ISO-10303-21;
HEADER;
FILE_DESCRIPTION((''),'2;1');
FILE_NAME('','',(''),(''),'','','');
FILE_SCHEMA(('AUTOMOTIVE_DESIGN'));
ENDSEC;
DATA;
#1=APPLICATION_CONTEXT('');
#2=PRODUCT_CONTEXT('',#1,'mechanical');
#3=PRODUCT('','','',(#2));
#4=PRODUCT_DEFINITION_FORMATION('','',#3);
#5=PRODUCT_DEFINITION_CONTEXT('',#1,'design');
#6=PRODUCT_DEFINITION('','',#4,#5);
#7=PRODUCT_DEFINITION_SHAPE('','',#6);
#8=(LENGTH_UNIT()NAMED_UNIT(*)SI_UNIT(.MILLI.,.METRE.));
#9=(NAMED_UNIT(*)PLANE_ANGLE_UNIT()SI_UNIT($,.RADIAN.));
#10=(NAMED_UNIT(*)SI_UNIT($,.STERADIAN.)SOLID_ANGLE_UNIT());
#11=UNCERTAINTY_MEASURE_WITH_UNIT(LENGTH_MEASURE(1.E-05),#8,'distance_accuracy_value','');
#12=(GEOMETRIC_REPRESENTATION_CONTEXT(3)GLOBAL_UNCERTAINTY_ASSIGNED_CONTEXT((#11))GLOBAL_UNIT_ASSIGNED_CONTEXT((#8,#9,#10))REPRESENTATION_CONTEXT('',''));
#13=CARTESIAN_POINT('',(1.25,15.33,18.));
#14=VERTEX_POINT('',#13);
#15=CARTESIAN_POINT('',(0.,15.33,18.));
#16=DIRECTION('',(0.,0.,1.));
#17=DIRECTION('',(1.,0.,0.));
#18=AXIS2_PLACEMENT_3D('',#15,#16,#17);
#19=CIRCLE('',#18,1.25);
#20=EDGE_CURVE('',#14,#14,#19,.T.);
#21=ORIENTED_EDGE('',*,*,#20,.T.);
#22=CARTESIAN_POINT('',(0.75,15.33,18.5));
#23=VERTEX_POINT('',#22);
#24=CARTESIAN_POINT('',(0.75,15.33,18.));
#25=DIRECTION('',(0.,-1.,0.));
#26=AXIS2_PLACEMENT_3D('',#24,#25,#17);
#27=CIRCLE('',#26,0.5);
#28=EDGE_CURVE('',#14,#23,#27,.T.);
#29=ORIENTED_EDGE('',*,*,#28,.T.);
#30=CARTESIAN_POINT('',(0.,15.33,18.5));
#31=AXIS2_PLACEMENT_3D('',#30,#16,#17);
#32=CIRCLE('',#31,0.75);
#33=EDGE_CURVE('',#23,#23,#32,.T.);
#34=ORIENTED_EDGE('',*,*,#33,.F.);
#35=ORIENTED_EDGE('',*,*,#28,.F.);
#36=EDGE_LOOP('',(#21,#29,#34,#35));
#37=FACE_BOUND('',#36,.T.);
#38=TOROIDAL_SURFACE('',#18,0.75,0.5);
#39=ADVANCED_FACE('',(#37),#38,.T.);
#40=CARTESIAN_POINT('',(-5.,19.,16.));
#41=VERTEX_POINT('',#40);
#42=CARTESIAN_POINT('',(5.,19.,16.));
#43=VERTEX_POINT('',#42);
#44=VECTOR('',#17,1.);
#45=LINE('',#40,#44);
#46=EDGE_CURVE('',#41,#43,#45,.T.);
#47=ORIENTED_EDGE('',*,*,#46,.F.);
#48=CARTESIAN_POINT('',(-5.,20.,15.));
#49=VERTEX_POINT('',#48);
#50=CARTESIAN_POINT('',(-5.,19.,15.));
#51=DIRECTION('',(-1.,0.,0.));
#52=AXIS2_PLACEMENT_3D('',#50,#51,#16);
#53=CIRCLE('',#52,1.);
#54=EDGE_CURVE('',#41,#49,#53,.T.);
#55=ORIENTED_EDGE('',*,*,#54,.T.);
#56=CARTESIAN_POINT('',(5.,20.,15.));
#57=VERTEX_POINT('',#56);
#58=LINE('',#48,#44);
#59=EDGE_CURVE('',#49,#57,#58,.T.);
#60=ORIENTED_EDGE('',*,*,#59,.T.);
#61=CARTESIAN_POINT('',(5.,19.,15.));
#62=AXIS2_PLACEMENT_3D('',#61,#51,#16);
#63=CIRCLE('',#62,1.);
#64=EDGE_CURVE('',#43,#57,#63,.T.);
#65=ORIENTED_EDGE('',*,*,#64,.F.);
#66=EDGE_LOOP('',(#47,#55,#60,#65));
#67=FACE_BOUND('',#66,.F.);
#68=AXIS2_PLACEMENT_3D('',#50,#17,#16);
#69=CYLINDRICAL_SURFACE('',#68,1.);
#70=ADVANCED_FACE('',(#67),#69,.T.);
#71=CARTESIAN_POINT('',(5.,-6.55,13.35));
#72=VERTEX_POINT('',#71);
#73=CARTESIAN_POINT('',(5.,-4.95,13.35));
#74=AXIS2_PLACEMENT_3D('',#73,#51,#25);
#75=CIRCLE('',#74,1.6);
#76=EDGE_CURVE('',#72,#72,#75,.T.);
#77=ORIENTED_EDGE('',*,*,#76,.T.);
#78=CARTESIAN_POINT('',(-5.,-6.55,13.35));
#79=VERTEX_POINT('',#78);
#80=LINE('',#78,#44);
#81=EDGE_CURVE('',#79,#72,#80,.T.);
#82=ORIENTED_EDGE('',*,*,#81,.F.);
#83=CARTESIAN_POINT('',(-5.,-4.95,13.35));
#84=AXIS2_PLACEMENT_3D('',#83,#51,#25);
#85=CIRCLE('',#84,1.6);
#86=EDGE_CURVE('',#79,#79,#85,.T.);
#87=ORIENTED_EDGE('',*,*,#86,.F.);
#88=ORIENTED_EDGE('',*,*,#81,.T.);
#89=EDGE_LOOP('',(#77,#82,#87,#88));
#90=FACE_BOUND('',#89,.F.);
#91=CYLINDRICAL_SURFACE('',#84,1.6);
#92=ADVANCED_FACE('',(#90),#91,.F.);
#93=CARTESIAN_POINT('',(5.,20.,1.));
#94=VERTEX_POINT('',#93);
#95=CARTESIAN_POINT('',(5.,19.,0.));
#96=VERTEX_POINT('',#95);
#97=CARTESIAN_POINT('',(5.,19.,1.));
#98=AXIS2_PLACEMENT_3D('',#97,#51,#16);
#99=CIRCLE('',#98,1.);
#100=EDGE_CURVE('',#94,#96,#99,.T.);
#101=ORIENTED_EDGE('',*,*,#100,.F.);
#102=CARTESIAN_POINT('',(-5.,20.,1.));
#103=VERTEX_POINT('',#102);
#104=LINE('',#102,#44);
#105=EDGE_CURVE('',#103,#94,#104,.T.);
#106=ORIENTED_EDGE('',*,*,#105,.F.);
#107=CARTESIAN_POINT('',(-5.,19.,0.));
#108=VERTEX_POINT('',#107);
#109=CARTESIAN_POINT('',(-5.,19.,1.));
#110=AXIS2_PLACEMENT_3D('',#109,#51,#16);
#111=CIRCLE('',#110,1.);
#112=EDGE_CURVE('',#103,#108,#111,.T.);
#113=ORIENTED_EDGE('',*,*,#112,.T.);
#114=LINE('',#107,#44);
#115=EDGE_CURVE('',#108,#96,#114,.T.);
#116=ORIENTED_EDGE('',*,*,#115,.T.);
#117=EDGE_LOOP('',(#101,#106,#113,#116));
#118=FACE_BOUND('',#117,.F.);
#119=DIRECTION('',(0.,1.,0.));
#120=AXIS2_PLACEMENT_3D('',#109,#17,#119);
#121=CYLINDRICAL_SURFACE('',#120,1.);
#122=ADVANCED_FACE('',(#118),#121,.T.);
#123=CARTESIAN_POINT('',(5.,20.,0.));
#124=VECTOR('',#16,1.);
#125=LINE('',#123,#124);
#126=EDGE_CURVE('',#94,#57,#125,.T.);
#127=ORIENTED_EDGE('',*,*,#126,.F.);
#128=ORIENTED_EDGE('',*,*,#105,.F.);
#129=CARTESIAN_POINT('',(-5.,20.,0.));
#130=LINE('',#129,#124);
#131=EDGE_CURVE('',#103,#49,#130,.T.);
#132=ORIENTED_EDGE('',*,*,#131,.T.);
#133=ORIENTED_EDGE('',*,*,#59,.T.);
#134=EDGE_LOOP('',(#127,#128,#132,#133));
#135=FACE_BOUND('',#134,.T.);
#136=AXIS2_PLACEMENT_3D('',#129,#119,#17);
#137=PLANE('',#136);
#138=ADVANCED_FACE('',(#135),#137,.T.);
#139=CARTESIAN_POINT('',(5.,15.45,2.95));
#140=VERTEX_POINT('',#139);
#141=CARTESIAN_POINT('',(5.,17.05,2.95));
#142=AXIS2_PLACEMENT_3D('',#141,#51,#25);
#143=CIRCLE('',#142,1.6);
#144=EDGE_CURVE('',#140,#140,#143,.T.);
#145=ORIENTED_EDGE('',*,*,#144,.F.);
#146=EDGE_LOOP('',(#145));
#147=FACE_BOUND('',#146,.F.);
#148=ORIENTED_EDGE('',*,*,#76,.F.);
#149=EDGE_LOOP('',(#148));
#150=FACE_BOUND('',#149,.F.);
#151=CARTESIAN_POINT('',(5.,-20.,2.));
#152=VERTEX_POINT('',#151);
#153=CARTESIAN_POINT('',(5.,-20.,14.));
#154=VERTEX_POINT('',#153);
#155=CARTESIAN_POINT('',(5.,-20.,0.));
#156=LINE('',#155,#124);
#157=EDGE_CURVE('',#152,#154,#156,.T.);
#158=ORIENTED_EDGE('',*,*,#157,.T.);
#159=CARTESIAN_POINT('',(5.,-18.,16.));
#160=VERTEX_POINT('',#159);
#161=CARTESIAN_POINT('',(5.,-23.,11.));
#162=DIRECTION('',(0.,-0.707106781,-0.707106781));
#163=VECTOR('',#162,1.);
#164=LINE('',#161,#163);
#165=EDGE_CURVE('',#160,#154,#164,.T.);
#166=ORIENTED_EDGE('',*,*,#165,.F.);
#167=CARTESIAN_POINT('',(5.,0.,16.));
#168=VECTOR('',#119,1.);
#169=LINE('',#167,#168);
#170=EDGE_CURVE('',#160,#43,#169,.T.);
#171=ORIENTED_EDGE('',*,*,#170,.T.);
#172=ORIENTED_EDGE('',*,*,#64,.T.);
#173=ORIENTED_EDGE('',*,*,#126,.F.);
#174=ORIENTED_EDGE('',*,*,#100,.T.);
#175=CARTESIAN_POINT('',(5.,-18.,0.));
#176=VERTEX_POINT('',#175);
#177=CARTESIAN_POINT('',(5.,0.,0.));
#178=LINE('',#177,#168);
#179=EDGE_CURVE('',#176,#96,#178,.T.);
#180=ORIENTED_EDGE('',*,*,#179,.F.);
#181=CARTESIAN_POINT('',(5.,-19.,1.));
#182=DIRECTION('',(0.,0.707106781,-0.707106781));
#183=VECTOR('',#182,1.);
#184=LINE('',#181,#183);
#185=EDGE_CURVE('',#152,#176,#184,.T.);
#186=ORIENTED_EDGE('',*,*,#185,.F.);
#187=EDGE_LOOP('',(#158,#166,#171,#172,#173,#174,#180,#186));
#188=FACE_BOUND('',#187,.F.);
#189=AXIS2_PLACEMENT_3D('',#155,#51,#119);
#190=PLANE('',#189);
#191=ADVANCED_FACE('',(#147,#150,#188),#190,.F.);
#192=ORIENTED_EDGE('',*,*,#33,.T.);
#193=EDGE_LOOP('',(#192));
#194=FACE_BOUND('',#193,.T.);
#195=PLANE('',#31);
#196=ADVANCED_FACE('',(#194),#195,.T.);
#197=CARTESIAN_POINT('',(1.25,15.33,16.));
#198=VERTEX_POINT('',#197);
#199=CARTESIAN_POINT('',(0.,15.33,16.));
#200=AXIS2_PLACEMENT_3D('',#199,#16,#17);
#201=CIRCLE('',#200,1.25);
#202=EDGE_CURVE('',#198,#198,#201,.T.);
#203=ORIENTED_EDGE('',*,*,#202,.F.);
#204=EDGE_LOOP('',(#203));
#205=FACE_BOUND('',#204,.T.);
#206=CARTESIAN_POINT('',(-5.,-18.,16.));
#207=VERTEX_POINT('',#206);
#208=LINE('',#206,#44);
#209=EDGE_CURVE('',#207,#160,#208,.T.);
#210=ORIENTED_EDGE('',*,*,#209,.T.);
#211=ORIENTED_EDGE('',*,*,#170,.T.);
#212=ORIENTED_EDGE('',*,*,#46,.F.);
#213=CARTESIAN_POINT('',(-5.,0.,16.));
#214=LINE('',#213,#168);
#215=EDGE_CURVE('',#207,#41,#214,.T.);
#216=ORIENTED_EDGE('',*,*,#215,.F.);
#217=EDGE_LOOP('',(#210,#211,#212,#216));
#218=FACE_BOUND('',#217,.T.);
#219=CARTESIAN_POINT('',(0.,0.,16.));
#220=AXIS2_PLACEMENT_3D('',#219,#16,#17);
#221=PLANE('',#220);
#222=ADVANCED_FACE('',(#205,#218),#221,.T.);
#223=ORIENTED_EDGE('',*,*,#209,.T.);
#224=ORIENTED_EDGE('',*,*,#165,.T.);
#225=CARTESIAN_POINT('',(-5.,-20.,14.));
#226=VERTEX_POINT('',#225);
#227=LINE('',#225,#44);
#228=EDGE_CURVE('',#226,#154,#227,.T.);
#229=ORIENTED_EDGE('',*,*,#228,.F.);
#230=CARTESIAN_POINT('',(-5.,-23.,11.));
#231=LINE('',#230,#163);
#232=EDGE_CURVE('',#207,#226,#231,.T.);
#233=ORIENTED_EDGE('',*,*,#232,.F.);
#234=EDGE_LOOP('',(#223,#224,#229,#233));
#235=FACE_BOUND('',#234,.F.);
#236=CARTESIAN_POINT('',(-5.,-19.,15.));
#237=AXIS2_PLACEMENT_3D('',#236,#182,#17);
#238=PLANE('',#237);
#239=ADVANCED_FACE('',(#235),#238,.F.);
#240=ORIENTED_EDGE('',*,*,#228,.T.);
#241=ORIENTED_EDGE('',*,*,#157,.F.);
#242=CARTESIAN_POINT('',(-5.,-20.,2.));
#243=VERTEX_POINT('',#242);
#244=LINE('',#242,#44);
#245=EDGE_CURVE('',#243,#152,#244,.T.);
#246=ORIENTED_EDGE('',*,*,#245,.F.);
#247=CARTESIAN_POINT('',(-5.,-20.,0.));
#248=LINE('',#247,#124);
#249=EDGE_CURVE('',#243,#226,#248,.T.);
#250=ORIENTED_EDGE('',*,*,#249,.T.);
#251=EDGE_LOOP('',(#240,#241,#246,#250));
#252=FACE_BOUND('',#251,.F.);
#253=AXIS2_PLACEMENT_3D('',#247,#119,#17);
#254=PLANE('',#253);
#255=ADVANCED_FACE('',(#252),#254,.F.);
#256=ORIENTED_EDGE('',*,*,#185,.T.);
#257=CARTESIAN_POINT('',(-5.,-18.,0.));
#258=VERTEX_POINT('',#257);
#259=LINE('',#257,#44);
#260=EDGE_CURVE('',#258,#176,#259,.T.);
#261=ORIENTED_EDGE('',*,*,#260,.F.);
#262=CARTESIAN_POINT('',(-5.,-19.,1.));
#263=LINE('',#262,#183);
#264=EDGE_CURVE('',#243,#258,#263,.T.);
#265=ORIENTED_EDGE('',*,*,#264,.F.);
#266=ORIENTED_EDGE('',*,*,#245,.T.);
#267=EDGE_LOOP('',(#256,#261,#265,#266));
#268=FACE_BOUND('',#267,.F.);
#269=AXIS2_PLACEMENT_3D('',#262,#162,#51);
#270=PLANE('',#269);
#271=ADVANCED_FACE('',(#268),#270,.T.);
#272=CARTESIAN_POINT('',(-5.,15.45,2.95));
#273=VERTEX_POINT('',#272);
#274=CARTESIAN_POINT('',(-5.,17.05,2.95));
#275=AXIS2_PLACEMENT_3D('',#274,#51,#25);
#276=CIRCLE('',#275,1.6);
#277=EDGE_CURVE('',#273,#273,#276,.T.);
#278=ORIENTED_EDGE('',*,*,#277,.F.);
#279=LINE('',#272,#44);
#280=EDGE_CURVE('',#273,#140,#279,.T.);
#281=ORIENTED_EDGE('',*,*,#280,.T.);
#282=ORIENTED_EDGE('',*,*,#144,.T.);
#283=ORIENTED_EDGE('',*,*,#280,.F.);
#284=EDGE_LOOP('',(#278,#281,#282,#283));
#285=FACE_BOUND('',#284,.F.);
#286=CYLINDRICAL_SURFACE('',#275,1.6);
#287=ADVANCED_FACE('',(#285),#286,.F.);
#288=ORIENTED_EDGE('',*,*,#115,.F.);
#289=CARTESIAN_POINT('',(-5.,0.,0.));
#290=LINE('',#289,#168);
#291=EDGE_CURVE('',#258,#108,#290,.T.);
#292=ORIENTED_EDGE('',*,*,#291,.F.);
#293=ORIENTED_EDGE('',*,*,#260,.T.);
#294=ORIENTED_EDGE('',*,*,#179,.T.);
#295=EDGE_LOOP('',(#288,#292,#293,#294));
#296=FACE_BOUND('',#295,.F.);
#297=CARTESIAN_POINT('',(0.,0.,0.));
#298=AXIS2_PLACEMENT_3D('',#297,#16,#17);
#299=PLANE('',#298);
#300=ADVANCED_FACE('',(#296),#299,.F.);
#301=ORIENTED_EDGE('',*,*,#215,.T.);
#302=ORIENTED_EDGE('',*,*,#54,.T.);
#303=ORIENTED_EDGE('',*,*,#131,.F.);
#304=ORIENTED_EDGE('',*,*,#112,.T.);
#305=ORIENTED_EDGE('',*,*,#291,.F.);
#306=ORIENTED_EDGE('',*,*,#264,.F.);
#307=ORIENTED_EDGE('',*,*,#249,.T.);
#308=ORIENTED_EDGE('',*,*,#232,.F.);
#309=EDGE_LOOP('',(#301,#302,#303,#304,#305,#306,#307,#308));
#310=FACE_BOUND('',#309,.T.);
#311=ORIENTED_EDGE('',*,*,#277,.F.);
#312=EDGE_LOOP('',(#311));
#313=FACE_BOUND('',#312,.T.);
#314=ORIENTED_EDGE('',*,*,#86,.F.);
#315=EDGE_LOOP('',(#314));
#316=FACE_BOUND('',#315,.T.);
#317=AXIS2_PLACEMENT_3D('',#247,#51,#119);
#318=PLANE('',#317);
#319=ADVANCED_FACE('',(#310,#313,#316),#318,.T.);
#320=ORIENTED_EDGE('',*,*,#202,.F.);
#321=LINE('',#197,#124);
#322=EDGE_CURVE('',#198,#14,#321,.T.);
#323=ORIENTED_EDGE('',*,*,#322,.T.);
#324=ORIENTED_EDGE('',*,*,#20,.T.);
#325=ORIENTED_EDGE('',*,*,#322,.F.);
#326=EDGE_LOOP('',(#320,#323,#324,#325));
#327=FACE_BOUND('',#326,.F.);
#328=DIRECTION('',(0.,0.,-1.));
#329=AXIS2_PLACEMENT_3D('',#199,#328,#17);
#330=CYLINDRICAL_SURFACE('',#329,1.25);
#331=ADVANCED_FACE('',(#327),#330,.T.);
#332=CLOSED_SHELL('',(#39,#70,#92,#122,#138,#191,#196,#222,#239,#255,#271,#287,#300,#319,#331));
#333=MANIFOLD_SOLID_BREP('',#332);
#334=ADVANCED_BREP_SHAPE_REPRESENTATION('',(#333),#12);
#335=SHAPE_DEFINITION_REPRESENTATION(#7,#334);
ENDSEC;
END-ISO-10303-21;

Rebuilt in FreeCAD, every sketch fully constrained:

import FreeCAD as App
import Part
import Sketcher
Q = App.Units.Quantity


def edges_at(feature, points):
    """Names of the edges that pass closest to the given points."""
    edges = feature.Shape.Edges
    near = lambda p: min(range(len(edges)), key=lambda i: edges[i].distToShape(Part.Vertex(*p))[0])
    return sorted({f"Edge{near(p) + 1}" for p in points})

doc = App.newDocument("Part")
body = doc.addObject("PartDesign::Body", "Body")

# Sketch on XY plane
sketch1 = doc.addObject("Sketcher::SketchObject", "Sketch")
body.addObject(sketch1)
sketch1.AttachmentSupport = (doc.XY_Plane, [""])
sketch1.MapMode = "FlatFace"
sketch1.addGeometry([
    Part.LineSegment(App.Vector(-5, 20, 0), App.Vector(-5, -20, 0)),
    Part.LineSegment(App.Vector(-5, -20, 0), App.Vector(5, -20, 0)),
    Part.LineSegment(App.Vector(5, -20, 0), App.Vector(5, 20, 0)),
    Part.LineSegment(App.Vector(5, 20, 0), App.Vector(-5, 20, 0)),
], False)
sketch1.addConstraint([
    Sketcher.Constraint("Coincident", 0, 2, 1, 1),
    Sketcher.Constraint("Coincident", 1, 2, 2, 1),
    Sketcher.Constraint("Coincident", 2, 2, 3, 1),
    Sketcher.Constraint("Coincident", 3, 2, 0, 1),
    Sketcher.Constraint("Vertical", 0),
    Sketcher.Constraint("Horizontal", 1),
    Sketcher.Constraint("Vertical", 2),
    Sketcher.Constraint("Horizontal", 3),
    Sketcher.Constraint("Symmetric", 0, 2, 2, 2, -1, 1),
    Sketcher.Constraint("DistanceX", 1, 1, 1, 2, Q("10 mm")),
    Sketcher.Constraint("DistanceY", 0, 2, 0, 1, Q("40 mm")),
])
pad1 = doc.addObject("PartDesign::Pad", "Pad")
body.addObject(pad1)
pad1.Profile = sketch1
pad1.Length = 16

# Sketch on XY plane
sketch2 = doc.addObject("Sketcher::SketchObject", "Sketch001")
body.addObject(sketch2)
sketch2.AttachmentSupport = (doc.XY_Plane, [""])
sketch2.MapMode = "FlatFace"
sketch2.AttachmentOffset = App.Placement(App.Vector(0, 0, 16), App.Rotation())
sketch2.addGeometry(Part.Circle(App.Vector(0, 15.3, 0), App.Vector(0, 0, 1), 1.2), False)
sketch2.addConstraint([
    Sketcher.Constraint("PointOnObject", 0, 3, -2),
    Sketcher.Constraint("Diameter", 0, Q("2.5 mm")),
    Sketcher.Constraint("DistanceY", -1, 1, 0, 3, Q("15.33 mm")),
])
pad2 = doc.addObject("PartDesign::Pad", "Pad001")
body.addObject(pad2)
pad2.Profile = sketch2
pad2.Length = 2.5
doc.recompute()

fillet = doc.addObject("PartDesign::Fillet", "Fillet")
body.addObject(fillet)
fillet.Base = (pad2, edges_at(pad2, [(-1.25, 15.33, 18.5)]))
fillet.Radius = 0.5
doc.recompute()

fillet2 = doc.addObject("PartDesign::Fillet", "Fillet001")
body.addObject(fillet2)
fillet2.Base = (fillet, edges_at(fillet, [(0, 20, 16), (0, 20, 0)]))
fillet2.Radius = 1
doc.recompute()

chamfer = doc.addObject("PartDesign::Chamfer", "Chamfer")
body.addObject(chamfer)
chamfer.Base = (fillet2, edges_at(fillet2, [(0, -20, 0), (0, -20, 16)]))
chamfer.Size = 2

# Sketch on YZ plane
sketch3 = doc.addObject("Sketcher::SketchObject", "Sketch002")
body.addObject(sketch3)
sketch3.AttachmentSupport = (doc.YZ_Plane, [""])
sketch3.MapMode = "FlatFace"
sketch3.AttachmentOffset = App.Placement(App.Vector(0, 0, -5), App.Rotation())
sketch3.addGeometry([
    Part.Circle(App.Vector(17.1, 3, 0), App.Vector(0, 0, 1), 1.6),
    Part.Circle(App.Vector(-5, 13.3, 0), App.Vector(0, 0, 1), 1.6),
], False)
sketch3.addConstraint([
    Sketcher.Constraint("Equal", 0, 1),
    Sketcher.Constraint("Diameter", 0, Q("3.2 mm")),
    Sketcher.Constraint("DistanceX", 1, 3, 0, 3, Q("22 mm")),
    Sketcher.Constraint("DistanceY", 0, 3, 1, 3, Q("10.4 mm")),
    Sketcher.Constraint("DistanceX", -1, 1, 0, 3, Q("17.05 mm")),
    Sketcher.Constraint("DistanceY", -1, 1, 0, 3, Q("2.95 mm")),
])
pocket1 = doc.addObject("PartDesign::Pocket", "Pocket")
body.addObject(pocket1)
pocket1.Profile = sketch3
pocket1.Type = "ThroughAll"
pocket1.Reversed = True

doc.recompute()
